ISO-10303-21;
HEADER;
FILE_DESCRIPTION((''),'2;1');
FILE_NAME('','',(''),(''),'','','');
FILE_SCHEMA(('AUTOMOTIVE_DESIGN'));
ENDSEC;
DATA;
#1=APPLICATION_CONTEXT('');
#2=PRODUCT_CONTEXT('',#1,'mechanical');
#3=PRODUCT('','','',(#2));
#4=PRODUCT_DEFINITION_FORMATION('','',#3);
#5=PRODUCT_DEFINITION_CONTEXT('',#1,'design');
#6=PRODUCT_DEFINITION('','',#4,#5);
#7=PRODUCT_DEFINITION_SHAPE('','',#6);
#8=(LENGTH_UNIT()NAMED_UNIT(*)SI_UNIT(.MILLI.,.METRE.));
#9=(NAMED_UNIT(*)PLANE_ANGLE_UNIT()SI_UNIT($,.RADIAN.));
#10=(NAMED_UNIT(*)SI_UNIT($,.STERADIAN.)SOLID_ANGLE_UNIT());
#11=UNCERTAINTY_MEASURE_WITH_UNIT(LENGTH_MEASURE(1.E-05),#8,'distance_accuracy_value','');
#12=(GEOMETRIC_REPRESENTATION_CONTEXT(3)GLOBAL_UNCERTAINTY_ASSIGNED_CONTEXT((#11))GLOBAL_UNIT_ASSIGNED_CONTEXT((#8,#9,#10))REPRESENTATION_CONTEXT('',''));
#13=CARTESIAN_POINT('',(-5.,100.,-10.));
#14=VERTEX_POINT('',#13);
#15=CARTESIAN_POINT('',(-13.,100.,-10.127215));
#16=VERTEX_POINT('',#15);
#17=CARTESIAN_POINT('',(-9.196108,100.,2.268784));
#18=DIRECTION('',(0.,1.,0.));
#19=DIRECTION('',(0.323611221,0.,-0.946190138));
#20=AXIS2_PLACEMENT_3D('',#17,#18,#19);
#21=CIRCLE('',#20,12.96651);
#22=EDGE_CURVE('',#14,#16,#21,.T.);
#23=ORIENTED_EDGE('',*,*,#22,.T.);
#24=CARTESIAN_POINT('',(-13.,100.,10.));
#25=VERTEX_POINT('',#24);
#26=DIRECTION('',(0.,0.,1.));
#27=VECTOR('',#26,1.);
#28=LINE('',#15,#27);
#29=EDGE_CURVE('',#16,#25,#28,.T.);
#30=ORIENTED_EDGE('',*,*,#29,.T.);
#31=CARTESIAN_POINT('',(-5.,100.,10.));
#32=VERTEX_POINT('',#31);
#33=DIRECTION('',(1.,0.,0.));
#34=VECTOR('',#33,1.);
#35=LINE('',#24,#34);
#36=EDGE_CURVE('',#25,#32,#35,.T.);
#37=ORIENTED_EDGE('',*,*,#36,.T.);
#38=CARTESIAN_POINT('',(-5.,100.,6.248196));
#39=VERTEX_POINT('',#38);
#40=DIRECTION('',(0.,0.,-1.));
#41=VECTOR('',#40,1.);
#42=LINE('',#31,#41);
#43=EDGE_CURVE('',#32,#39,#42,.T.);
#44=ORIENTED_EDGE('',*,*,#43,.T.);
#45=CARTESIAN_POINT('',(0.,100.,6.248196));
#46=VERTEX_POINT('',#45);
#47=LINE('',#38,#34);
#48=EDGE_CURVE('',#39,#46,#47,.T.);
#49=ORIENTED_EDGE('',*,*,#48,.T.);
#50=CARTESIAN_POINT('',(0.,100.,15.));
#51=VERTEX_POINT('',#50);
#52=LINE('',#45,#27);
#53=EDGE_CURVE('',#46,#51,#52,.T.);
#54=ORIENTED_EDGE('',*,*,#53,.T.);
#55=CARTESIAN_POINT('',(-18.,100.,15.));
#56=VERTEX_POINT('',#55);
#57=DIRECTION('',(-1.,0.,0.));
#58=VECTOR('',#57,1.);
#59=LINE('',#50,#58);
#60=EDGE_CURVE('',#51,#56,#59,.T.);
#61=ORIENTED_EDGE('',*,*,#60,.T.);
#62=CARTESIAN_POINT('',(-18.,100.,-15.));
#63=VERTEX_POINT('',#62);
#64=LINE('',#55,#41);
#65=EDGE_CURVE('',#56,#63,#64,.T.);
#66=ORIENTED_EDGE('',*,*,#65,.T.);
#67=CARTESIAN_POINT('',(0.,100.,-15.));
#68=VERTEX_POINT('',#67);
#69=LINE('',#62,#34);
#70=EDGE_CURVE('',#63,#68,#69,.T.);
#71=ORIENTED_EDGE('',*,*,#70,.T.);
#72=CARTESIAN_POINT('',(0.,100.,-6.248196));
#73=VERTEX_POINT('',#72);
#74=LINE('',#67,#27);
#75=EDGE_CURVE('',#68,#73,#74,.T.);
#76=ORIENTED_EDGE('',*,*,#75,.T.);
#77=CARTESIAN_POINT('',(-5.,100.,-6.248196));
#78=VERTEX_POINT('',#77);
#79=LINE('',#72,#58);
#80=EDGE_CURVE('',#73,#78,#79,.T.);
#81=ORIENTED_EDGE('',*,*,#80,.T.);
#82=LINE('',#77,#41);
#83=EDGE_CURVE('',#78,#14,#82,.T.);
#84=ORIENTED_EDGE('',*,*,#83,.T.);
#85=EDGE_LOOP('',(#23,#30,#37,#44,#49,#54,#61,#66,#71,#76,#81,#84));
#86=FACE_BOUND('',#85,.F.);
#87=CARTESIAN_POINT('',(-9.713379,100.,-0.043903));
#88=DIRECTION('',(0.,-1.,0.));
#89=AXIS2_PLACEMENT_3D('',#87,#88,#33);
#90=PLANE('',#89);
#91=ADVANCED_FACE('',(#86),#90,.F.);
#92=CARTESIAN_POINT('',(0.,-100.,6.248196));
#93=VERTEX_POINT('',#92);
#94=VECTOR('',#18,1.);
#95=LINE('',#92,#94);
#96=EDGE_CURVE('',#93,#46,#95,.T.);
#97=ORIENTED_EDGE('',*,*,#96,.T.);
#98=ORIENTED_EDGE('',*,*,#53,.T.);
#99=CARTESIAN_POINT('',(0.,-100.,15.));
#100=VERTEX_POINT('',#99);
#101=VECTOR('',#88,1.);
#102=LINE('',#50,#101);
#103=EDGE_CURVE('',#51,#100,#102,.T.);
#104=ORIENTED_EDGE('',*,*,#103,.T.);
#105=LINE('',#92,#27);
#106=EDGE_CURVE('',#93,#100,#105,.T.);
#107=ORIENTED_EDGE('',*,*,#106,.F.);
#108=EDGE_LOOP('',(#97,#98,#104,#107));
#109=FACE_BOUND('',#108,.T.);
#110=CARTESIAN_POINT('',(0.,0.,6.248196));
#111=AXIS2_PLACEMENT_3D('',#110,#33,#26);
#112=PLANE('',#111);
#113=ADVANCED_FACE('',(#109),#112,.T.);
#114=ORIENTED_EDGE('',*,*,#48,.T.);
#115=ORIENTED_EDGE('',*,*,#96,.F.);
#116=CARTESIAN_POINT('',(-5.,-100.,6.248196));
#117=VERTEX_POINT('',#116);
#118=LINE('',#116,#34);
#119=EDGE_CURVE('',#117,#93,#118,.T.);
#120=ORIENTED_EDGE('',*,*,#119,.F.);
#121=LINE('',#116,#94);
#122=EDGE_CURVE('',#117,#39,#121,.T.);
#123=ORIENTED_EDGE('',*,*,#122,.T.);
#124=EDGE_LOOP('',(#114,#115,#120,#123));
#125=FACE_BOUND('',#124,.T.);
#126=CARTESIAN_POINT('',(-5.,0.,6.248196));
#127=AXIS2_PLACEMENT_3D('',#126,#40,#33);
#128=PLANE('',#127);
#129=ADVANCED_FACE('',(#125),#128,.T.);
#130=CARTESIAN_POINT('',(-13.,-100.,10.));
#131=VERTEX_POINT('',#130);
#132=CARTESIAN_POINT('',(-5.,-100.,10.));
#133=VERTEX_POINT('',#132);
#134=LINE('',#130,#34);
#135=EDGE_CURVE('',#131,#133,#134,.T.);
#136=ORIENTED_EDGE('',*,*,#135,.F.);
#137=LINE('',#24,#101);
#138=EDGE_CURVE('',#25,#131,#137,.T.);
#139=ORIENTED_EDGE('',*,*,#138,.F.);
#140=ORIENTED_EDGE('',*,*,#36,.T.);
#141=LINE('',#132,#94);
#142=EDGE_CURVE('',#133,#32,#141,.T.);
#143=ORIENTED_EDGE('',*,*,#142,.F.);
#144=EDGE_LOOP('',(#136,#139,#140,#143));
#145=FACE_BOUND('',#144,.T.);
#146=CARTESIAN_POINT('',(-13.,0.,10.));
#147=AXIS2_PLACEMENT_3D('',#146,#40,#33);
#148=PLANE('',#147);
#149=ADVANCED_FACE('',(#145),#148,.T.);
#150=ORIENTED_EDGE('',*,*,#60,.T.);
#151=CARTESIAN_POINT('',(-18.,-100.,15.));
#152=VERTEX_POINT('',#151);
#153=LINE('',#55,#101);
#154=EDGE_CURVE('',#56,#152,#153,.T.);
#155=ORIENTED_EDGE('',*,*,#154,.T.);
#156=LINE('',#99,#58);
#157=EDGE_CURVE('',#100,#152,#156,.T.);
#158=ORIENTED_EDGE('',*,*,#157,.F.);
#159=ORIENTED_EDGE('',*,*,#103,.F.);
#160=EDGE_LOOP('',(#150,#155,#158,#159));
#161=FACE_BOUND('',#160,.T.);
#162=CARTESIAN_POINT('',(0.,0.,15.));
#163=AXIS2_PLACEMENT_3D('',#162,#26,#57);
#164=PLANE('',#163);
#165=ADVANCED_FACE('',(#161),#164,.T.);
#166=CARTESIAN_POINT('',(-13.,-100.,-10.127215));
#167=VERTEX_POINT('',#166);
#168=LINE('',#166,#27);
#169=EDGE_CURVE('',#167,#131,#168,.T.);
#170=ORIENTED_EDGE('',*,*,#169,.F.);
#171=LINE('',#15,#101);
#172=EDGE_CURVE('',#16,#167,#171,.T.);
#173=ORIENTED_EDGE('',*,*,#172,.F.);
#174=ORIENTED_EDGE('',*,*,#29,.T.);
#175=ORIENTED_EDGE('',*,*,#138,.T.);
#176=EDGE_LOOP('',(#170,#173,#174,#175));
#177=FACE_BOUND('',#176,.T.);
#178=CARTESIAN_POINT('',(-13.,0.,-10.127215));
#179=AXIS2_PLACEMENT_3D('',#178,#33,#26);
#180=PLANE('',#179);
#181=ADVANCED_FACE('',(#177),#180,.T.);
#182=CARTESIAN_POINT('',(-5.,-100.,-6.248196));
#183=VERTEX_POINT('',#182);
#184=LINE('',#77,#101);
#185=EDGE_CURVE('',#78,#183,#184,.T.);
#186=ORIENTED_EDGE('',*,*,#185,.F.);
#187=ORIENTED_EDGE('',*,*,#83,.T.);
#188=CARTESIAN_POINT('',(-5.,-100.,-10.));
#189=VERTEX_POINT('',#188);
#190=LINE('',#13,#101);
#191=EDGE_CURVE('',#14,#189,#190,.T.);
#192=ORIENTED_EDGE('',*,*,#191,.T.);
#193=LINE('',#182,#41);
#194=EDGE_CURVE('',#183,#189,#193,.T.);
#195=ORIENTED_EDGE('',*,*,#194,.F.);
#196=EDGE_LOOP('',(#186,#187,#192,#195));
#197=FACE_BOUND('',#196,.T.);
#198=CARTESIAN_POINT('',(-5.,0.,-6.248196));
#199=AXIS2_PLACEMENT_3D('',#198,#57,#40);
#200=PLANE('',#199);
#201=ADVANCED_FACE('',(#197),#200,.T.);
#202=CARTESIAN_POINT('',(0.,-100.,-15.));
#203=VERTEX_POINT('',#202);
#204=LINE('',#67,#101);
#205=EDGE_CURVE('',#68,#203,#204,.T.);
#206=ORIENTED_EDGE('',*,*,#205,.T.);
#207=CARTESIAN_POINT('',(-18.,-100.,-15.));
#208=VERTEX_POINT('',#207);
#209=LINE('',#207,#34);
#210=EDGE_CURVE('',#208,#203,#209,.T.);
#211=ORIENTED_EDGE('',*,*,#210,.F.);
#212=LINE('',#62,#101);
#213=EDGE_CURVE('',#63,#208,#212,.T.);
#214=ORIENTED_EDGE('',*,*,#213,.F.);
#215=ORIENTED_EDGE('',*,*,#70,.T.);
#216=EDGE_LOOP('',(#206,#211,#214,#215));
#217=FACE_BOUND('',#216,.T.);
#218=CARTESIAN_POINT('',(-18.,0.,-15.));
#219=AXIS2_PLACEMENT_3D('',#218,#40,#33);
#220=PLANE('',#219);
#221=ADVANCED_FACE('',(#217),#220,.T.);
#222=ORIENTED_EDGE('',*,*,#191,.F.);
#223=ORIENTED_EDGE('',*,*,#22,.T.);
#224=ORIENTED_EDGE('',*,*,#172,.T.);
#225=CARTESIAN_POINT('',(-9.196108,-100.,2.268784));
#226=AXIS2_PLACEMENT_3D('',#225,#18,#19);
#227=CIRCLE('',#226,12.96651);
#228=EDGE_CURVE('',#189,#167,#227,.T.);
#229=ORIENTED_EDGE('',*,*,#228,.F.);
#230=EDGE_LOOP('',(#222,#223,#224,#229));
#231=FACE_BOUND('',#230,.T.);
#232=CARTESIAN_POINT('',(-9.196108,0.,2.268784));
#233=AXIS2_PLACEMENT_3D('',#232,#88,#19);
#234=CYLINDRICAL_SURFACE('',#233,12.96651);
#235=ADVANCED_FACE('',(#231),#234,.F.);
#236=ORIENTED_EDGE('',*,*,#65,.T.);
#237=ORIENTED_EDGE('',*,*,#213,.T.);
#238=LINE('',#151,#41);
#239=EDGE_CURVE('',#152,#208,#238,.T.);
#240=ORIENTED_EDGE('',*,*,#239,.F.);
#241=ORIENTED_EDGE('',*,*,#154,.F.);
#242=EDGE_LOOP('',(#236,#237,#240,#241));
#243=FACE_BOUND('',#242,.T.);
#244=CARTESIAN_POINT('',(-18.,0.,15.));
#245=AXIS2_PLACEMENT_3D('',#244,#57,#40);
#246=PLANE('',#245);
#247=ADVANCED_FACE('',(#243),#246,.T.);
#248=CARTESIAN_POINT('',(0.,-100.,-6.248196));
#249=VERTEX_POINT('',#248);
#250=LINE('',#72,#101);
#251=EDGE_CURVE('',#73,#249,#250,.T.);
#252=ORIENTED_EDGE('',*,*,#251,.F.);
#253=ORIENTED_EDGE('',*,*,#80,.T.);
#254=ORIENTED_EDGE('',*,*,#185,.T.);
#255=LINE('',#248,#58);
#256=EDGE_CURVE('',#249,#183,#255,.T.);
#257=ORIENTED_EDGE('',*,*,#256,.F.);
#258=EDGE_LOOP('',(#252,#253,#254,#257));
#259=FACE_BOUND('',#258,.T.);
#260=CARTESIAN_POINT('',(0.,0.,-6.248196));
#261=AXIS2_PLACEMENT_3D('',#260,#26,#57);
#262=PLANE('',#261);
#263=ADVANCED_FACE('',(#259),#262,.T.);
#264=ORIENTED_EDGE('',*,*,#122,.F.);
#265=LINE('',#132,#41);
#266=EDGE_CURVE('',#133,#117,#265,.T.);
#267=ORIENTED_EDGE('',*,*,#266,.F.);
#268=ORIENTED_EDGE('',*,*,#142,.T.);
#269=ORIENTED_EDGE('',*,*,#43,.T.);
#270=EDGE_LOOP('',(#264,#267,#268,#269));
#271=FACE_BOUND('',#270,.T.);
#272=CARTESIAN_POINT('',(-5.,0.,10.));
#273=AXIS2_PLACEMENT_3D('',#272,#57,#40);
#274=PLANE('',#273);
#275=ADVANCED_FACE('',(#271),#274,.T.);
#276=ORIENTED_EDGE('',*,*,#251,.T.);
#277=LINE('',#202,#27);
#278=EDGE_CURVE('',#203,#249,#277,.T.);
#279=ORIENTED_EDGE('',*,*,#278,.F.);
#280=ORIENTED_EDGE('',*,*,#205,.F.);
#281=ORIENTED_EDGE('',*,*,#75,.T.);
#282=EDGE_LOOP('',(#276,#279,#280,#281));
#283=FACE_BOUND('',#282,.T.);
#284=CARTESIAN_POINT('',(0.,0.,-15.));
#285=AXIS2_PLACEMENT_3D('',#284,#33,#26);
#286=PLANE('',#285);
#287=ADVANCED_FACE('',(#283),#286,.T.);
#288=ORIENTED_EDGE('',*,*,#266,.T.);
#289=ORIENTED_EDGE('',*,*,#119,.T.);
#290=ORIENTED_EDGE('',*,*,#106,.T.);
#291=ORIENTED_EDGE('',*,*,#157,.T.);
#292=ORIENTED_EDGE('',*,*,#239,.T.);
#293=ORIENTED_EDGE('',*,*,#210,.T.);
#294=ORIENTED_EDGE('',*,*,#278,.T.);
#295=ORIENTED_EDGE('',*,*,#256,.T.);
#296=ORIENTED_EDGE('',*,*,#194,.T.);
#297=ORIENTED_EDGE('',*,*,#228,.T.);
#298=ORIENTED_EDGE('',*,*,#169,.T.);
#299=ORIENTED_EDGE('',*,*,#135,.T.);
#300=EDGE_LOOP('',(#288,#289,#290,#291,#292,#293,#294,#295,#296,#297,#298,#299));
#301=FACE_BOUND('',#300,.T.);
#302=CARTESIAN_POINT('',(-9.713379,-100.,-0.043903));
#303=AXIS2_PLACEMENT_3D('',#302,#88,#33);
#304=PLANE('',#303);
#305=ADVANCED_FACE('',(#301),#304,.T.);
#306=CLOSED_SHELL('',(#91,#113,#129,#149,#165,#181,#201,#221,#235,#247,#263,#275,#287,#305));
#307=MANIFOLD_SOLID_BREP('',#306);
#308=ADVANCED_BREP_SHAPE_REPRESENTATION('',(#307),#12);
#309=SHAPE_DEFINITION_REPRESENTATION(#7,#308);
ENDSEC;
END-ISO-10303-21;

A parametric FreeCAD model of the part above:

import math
import FreeCAD as App
import Part
import Sketcher

V = App.Vector
Q = App.Units.Quantity

doc = App.newDocument("Part")
body = doc.addObject("PartDesign::Body", "Body")

sketch1 = body.newObject("Sketcher::SketchObject", "Sketch")
sketch1.AttachmentSupport = (doc.getObject("XZ_Plane"), [""])
sketch1.MapMode = "FlatFace"
sketch1.addGeometry([
    Part.LineSegment(V(0, 6.2, 0), V(0, 15, 0)),
    Part.LineSegment(V(0, 15, 0), V(-18, 15, 0)),
    Part.LineSegment(V(-18, 15, 0), V(-18, -15, 0)),
    Part.LineSegment(V(-18, -15, 0), V(0, -15, 0)),
    Part.LineSegment(V(0, -15, 0), V(0, -6.2, 0)),
    Part.LineSegment(V(0, -6.2, 0), V(-5, -6.2, 0)),
    Part.LineSegment(V(-5, -6.2, 0), V(-5, -10, 0)),
    Part.ArcOfCircle(Part.Circle(V(-9.2, 2.3, 0), V(0, 0, 1), 13), math.radians(-107), math.radians(-71)),
    Part.LineSegment(V(-13, -10.1, 0), V(-13, 10, 0)),
    Part.LineSegment(V(-13, 10, 0), V(-5, 10, 0)),
    Part.LineSegment(V(-5, 10, 0), V(-5, 6.2, 0)),
    Part.LineSegment(V(-5, 6.2, 0), V(0, 6.2, 0)),
], False)
sketch1.addConstraint([
    Sketcher.Constraint("Coincident", 0, 2, 1, 1),
    Sketcher.Constraint("Coincident", 1, 2, 2, 1),
    Sketcher.Constraint("Coincident", 2, 2, 3, 1),
    Sketcher.Constraint("Coincident", 3, 2, 4, 1),
    Sketcher.Constraint("Coincident", 4, 2, 5, 1),
    Sketcher.Constraint("Coincident", 5, 2, 6, 1),
    Sketcher.Constraint("Coincident", 6, 2, 7, 2),
    Sketcher.Constraint("Coincident", 7, 1, 8, 1),
    Sketcher.Constraint("Coincident", 8, 2, 9, 1),
    Sketcher.Constraint("Coincident", 9, 2, 10, 1),
    Sketcher.Constraint("Coincident", 10, 2, 11, 1),
    Sketcher.Constraint("Coincident", 11, 2, 0, 1),
    Sketcher.Constraint("Vertical", 0),
    Sketcher.Constraint("Horizontal", 1),
    Sketcher.Constraint("Vertical", 2),
    Sketcher.Constraint("Horizontal", 3),
    Sketcher.Constraint("Vertical", 4),
    Sketcher.Constraint("Horizontal", 5),
    Sketcher.Constraint("Vertical", 6),
    Sketcher.Constraint("Vertical", 8),
    Sketcher.Constraint("Horizontal", 9),
    Sketcher.Constraint("Vertical", 10),
    Sketcher.Constraint("Horizontal", 11),
    Sketcher.Constraint("Symmetric", 0, 2, 3, 2, -1, 1),
    Sketcher.Constraint("Symmetric", 6, 2, 9, 2, -1),
    Sketcher.Constraint("Symmetric", 4, 2, 11, 2, -1),
    Sketcher.Constraint("DistanceX", 1, 2, 1, 1, Q("18 mm")),
    Sketcher.Constraint("DistanceX", 5, 2, 5, 1, Q("5 mm")),
    Sketcher.Constraint("DistanceX", 9, 1, 9, 2, Q("8 mm")),
    Sketcher.Constraint("DistanceY", 2, 2, 2, 1, Q("30 mm")),
    Sketcher.Constraint("DistanceY", 6, 2, -1, 1, Q("10 mm")),
    Sketcher.Constraint("Radius", 7, Q("12.96651 mm")),
    Sketcher.Constraint("DistanceY", 7, 1, 7, 3, Q("12.395999 mm")),
    Sketcher.Constraint("DistanceY", 0, 1, 0, 2, Q("8.751804 mm")),
])
pad1 = body.newObject("PartDesign::Pad", "Pad")
pad1.Profile = sketch1
pad1.Length = 200
pad1.Midplane = True

doc.recompute()
